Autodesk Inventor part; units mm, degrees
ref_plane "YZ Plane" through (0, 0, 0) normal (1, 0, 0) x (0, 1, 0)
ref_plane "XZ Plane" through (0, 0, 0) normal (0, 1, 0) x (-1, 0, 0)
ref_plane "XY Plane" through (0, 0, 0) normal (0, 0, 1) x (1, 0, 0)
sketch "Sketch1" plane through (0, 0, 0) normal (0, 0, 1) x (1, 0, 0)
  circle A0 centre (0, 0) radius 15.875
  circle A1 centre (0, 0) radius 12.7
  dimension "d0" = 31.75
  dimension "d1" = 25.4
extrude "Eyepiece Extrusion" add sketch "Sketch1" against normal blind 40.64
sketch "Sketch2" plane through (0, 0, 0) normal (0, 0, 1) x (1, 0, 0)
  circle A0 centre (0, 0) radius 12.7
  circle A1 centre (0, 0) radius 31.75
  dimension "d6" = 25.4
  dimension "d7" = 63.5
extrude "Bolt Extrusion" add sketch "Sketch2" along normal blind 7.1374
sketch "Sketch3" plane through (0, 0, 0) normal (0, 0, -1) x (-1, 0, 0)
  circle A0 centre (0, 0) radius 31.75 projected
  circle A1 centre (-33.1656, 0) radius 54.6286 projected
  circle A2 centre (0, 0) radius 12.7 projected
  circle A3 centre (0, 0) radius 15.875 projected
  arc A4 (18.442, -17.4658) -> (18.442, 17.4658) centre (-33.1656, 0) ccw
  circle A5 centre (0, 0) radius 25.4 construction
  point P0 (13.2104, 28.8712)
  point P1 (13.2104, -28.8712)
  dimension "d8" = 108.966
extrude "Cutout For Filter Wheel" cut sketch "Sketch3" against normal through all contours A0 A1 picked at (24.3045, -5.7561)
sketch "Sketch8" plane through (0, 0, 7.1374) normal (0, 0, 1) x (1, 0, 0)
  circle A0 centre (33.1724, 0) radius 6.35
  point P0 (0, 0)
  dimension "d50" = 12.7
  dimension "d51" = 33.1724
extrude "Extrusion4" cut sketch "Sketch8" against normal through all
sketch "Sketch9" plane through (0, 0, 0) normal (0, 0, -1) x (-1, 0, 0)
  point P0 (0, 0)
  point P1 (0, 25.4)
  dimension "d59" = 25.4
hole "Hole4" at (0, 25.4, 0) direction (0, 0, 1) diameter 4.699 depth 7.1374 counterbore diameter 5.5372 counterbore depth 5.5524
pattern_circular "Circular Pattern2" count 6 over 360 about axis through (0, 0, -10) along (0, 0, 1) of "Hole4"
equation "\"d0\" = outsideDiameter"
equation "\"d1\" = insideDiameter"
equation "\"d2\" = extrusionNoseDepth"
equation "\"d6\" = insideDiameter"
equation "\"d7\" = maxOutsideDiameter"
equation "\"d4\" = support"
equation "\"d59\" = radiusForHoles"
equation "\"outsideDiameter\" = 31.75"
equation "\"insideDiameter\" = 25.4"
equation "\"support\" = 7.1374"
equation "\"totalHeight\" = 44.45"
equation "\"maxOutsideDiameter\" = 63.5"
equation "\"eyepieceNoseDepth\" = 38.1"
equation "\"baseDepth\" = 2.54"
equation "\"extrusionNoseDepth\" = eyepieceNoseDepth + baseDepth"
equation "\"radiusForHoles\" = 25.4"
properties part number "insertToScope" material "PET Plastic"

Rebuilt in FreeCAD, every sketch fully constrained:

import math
import FreeCAD as App
import Part
import Sketcher

V = App.Vector
Q = App.Units.Quantity

doc = App.newDocument("Part")
params = doc.addObject("Spreadsheet::Sheet", "Params")
for row, (alias, value) in enumerate([
    ("sketch1_diameter", "1 in"),
    ("sketch1_diameter2", "1.25 in"),
    ("pad1_length", "1.6 in"),
    ("sketch2_diameter", "1 in"),
    ("sketch2_diameter2", "2.5 in"),
    ("pad2_length", "0.281 in"),
    ("sketch3_radius", "1.25 in"),
    ("sketch4_diameter", "0.5 in"),
    ("sketch5_diameter", "0.185 in"),
    ("hole_diameter", "0.185 in"),
    ("hole_depth", "0.281 in"),
    ("hole_cbore_diameter", "0.218 in"),
    ("hole_cbore_depth", "0.2185984 in"),
], start=1):
    params.set(f"A{row}", alias)
    params.set(f"B{row}", "=" + value)
    params.setAlias(f"B{row}", alias)

body = doc.addObject("PartDesign::Body", "Body")

# Sketch on XY plane
sketch1 = body.newObject("Sketcher::SketchObject", "Sketch")
sketch1.AttachmentSupport = (doc.getObject("XY_Plane"), [""])
sketch1.MapMode = "FlatFace"
sketch1.addGeometry([
    Part.Circle(V(0, 0, 0), V(0, 0, 1), 16),
    Part.Circle(V(0, 0, 0), V(0, 0, 1), 13),
], False)
sketch1.addConstraint([
    Sketcher.Constraint("Coincident", 0, 3, -1, 1),
    Sketcher.Constraint("Coincident", 1, 3, -1, 1),
    Sketcher.Constraint("Diameter", 1, Q("1 in")),
    Sketcher.Constraint("Diameter", 0, Q("1.25 in")),
])
sketch1.setExpression("Constraints[2]", "Params.sketch1_diameter")
sketch1.setExpression("Constraints[3]", "Params.sketch1_diameter2")
pad1 = body.newObject("PartDesign::Pad", "Pad")
pad1.Profile = sketch1
pad1.setExpression("Length", "Params.pad1_length")
pad1.Reversed = True

# Sketch on XY plane
sketch2 = body.newObject("Sketcher::SketchObject", "Sketch001")
sketch2.AttachmentSupport = (doc.getObject("XY_Plane"), [""])
sketch2.MapMode = "FlatFace"
sketch2.addGeometry([
    Part.Circle(V(0, 0, 0), V(0, 0, 1), 32),
    Part.Circle(V(0, 0, 0), V(0, 0, 1), 13),
], False)
sketch2.addConstraint([
    Sketcher.Constraint("Coincident", 0, 3, -1, 1),
    Sketcher.Constraint("Coincident", 1, 3, -1, 1),
    Sketcher.Constraint("Diameter", 1, Q("1 in")),
    Sketcher.Constraint("Diameter", 0, Q("2.5 in")),
])
sketch2.setExpression("Constraints[2]", "Params.sketch2_diameter")
sketch2.setExpression("Constraints[3]", "Params.sketch2_diameter2")
pad2 = body.newObject("PartDesign::Pad", "Pad001")
pad2.Profile = sketch2
pad2.setExpression("Length", "Params.pad2_length")

# Sketch on XY plane
sketch3 = body.newObject("Sketcher::SketchObject", "Sketch002")
sketch3.AttachmentSupport = (doc.getObject("XY_Plane"), [""])
sketch3.MapMode = "FlatFace"
sketch3.addGeometry([
    Part.ArcOfCircle(Part.Circle(V(0, 0, 0), V(0, 0, 1), 32), math.radians(115), math.radians(245)),
    Part.ArcOfCircle(Part.Circle(V(33, 0, 0), V(0, 0, 1), 55), math.radians(148), math.radians(212)),
], False)
sketch3.addConstraint([
    Sketcher.Constraint("Coincident", 0, 1, 1, 1),
    Sketcher.Constraint("Coincident", 1, 2, 0, 2),
    Sketcher.Constraint("Coincident", 0, 3, -1, 1),
    Sketcher.Constraint("PointOnObject", 1, 3, -1),
    Sketcher.Constraint("Radius", 0, Q("1.25 in")),
    Sketcher.Constraint("Radius", 1, 54.6286),
    Sketcher.Constraint("DistanceX", 0, 1, -1, 1, Q("0.5201 in")),
])
sketch3.setExpression("Constraints[4]", "Params.sketch3_radius")
pocket1 = body.newObject("PartDesign::Pocket", "Pocket")
pocket1.Profile = sketch3
pocket1.Type = "ThroughAll"
pocket1.Reversed = True

# Sketch on XY plane
sketch4 = body.newObject("Sketcher::SketchObject", "Sketch003")
sketch4.AttachmentSupport = (doc.getObject("XY_Plane"), [""])
sketch4.MapMode = "FlatFace"
sketch4.AttachmentOffset = App.Placement(V(0, 0, 0.281 * 25.4), App.Rotation())
sketch4.addGeometry(Part.Circle(V(33, 0, 0), V(0, 0, 1), 6), False)
sketch4.addConstraint([
    Sketcher.Constraint("PointOnObject", 0, 3, -1),
    Sketcher.Constraint("Diameter", 0, Q("0.5 in")),
    Sketcher.Constraint("DistanceX", -1, 1, 0, 3, Q("1.306 in")),
])
sketch4.setExpression("Constraints[1]", "Params.sketch4_diameter")
pocket2 = body.newObject("PartDesign::Pocket", "Pocket001")
pocket2.Profile = sketch4
pocket2.Type = "ThroughAll"

# Sketch on XY plane
sketch5 = body.newObject("Sketcher::SketchObject", "Sketch004")
sketch5.AttachmentSupport = (doc.getObject("XY_Plane"), [""])
sketch5.MapMode = "FlatFace"
sketch5.addGeometry(Part.Circle(V(0, 25.4, 0), V(0, 0, 1), 2.3), False)
sketch5.addConstraint([
    Sketcher.Constraint("PointOnObject", 0, 3, -2),
    Sketcher.Constraint("Diameter", 0, Q("0.185 in")),
    Sketcher.Constraint("DistanceY", -1, 1, 0, 3, Q("1 in")),
])
sketch5.setExpression("Constraints[1]", "Params.sketch5_diameter")
doc.recompute()
hole = body.newObject("PartDesign::Hole", "Hole")
hole.Profile = sketch5
hole.ThreadType = "None"
hole.setExpression("Diameter", "Params.hole_diameter")
hole.DepthType = "Dimension"
hole.setExpression("Depth", "Params.hole_depth")
hole.DrillPoint = "Flat"
hole.HoleCutType = "Counterbore"
hole.setExpression("HoleCutDiameter", "Params.hole_cbore_diameter")
hole.setExpression("HoleCutDepth", "Params.hole_cbore_depth")
hole.Reversed = True
doc.recompute()

polarpattern = body.newObject("PartDesign::PolarPattern", "PolarPattern")
polarpattern.Originals = [hole]
polarpattern.Axis = (doc.getObject("Z_Axis"), [""])
polarpattern.Angle = 360
polarpattern.Occurrences = 6
body.Tip = polarpattern

doc.recompute()
